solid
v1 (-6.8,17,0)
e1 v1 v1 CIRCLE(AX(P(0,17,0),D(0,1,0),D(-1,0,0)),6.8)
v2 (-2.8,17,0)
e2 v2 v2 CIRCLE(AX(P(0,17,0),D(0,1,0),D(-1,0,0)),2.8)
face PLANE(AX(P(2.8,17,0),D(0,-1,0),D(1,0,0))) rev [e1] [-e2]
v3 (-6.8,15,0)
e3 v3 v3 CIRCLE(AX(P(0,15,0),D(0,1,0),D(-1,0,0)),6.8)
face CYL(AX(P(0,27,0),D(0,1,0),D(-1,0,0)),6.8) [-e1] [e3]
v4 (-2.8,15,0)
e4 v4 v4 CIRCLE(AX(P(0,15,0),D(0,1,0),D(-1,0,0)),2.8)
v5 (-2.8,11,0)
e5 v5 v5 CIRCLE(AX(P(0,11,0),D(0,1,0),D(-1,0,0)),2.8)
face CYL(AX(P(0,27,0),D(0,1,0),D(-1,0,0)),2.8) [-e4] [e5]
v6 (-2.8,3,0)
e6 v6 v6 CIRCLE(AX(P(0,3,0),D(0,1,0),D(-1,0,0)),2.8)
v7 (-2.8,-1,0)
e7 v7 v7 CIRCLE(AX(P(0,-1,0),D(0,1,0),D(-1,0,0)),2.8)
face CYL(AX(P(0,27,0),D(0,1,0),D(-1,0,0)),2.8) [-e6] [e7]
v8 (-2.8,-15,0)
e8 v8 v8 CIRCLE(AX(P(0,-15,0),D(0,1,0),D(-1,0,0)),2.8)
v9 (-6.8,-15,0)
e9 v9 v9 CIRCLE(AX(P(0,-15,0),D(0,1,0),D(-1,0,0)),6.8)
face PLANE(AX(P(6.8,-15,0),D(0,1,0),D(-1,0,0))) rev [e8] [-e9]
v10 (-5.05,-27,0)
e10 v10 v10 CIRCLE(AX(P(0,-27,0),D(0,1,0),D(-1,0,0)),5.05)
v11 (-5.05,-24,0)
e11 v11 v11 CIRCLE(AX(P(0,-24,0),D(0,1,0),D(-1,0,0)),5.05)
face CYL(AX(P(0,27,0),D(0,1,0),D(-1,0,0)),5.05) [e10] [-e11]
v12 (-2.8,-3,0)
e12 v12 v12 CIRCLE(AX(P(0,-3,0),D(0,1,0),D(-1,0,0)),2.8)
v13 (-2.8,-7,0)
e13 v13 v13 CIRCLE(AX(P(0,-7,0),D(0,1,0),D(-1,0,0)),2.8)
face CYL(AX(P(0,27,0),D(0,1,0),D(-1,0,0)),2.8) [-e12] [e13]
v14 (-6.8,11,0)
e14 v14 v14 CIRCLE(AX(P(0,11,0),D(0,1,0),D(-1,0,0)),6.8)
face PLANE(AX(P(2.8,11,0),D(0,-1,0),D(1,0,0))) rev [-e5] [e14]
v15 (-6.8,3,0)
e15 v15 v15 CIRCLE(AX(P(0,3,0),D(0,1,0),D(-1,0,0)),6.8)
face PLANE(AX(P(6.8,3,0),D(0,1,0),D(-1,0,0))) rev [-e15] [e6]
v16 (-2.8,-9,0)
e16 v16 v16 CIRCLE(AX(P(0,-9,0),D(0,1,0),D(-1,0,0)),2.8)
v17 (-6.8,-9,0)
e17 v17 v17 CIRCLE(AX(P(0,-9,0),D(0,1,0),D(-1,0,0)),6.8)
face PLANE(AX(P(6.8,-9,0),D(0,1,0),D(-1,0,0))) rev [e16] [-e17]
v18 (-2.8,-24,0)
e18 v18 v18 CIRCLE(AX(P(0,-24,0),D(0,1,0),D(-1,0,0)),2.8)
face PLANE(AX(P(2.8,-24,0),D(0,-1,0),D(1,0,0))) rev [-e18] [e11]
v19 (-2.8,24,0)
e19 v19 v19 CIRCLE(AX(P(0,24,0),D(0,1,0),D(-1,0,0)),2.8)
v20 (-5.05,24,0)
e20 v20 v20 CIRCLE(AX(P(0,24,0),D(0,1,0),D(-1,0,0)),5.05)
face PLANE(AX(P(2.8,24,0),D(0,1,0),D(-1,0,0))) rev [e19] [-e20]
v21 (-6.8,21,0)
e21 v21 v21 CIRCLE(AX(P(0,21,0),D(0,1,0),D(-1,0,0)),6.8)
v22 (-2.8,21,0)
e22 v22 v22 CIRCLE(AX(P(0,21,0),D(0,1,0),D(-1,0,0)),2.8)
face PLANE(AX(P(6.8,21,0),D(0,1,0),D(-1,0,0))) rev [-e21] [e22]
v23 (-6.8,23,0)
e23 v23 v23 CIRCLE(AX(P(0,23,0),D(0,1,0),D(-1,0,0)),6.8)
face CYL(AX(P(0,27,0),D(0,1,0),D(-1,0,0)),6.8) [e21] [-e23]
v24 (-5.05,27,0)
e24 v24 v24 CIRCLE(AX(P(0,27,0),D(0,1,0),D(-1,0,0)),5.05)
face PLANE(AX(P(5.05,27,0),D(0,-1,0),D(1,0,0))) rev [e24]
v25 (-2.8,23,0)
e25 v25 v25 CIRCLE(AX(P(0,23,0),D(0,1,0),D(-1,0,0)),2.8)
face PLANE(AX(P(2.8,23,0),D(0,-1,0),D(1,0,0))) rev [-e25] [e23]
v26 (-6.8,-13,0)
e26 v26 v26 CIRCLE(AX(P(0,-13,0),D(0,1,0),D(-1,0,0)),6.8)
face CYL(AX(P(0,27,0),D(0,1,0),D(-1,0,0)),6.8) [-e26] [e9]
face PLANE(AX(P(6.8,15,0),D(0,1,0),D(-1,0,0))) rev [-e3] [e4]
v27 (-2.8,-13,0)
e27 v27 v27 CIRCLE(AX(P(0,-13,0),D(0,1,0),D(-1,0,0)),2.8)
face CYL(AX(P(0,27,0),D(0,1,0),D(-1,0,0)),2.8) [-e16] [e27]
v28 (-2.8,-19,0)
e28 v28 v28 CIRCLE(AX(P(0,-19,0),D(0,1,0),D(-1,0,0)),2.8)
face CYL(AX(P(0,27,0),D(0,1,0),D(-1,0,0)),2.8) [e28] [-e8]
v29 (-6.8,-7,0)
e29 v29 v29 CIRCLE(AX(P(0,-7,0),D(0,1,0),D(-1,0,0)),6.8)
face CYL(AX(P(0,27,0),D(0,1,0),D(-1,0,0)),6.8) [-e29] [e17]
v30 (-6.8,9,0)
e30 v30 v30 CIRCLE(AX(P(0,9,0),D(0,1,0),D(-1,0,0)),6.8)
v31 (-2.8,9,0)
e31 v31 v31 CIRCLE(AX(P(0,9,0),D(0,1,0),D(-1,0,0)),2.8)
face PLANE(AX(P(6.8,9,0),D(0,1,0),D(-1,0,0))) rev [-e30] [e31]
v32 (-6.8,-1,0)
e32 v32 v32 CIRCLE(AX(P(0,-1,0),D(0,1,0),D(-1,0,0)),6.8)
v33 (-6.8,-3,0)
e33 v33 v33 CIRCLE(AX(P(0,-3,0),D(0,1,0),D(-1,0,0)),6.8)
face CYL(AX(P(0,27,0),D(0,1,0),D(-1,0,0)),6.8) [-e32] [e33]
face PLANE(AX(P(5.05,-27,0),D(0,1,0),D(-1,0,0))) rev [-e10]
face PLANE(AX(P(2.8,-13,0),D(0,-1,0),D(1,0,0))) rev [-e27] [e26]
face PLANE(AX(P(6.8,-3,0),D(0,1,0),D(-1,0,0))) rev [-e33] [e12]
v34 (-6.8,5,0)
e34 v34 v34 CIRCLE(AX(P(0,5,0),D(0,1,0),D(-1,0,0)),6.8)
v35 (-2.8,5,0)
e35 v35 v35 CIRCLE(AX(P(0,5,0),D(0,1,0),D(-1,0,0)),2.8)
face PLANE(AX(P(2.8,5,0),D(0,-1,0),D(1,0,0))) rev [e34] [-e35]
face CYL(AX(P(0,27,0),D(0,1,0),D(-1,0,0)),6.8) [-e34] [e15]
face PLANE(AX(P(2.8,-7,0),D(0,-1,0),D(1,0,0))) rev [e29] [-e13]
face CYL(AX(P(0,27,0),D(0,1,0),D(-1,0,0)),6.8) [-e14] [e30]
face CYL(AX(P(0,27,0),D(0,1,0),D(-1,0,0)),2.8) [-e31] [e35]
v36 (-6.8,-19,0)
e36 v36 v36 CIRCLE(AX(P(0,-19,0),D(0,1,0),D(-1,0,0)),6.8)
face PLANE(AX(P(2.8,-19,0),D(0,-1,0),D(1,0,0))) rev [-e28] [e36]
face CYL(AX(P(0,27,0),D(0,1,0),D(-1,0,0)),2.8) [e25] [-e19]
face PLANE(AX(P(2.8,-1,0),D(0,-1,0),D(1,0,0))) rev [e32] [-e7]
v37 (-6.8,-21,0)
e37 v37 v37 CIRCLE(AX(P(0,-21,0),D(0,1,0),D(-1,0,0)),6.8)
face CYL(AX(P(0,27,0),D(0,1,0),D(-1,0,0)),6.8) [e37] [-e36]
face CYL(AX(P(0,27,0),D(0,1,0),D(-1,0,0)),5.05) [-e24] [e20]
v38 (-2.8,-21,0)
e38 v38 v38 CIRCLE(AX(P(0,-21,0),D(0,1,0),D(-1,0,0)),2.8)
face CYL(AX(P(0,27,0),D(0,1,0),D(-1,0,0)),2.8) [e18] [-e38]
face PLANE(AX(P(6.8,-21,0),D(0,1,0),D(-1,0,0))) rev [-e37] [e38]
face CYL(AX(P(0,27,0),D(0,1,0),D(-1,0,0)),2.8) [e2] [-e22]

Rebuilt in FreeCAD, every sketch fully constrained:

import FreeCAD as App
import Part
import Sketcher
from FreeCAD import Vector


def add_polygon(sketch, points):
    """Adds a closed chain of lines whose ends are joined by coincident constraints."""
    first, n = sketch.GeometryCount, len(points)
    for a, b in zip(points, points[1:] + points[:1]):
        sketch.addGeometry(Part.LineSegment(App.Vector(*a, 0), App.Vector(*b, 0)), False)
    for i in range(n):
        sketch.addConstraint(Sketcher.Constraint("Coincident", first + i, 2, first + (i + 1) % n, 1))

doc = App.newDocument("Part")
body = doc.addObject("PartDesign::Body", "Body")

# Sketch on XY plane
sketch1 = doc.addObject("Sketcher::SketchObject", "Sketch")
body.addObject(sketch1)
sketch1.AttachmentSupport = (doc.XY_Plane, [""])
sketch1.MapMode = "FlatFace"
add_polygon(sketch1, [(2.8, 23), (2.8, 24), (5.05, 24), (5.05, 27), (0, 27), (0, -27), (5.05, -27), (5.05, -24), (2.8, -24), (2.8, -21), (6.8, -21), (6.8, -19), (2.8, -19), (2.8, -15), (6.8, -15), (6.8, -13), (2.8, -13), (2.8, -9), (6.8, -9), (6.8, -7), (2.8, -7), (2.8, -3), (6.8, -3), (6.8, -1), (2.8, -1), (2.8, 3), (6.8, 3), (6.8, 5), (2.8, 5), (2.8, 9), (6.8, 9), (6.8, 11), (2.8, 11), (2.8, 15), (6.8, 15), (6.8, 17), (2.8, 17), (2.8, 21), (6.8, 21), (6.8, 23)])  # lines 0-39
sketch1.addConstraint(Sketcher.Constraint("Vertical", 0))
sketch1.addConstraint(Sketcher.Constraint("Horizontal", 1))
sketch1.addConstraint(Sketcher.Constraint("Vertical", 2))
sketch1.addConstraint(Sketcher.Constraint("Horizontal", 3))
sketch1.addConstraint(Sketcher.Constraint("Vertical", 4))
sketch1.addConstraint(Sketcher.Constraint("Horizontal", 5))
sketch1.addConstraint(Sketcher.Constraint("Vertical", 6))
sketch1.addConstraint(Sketcher.Constraint("Horizontal", 7))
sketch1.addConstraint(Sketcher.Constraint("Vertical", 8))
sketch1.addConstraint(Sketcher.Constraint("Horizontal", 9))
sketch1.addConstraint(Sketcher.Constraint("Vertical", 10))
sketch1.addConstraint(Sketcher.Constraint("Horizontal", 11))
sketch1.addConstraint(Sketcher.Constraint("Vertical", 12))
sketch1.addConstraint(Sketcher.Constraint("Horizontal", 13))
sketch1.addConstraint(Sketcher.Constraint("Vertical", 14))
sketch1.addConstraint(Sketcher.Constraint("Horizontal", 15))
sketch1.addConstraint(Sketcher.Constraint("Vertical", 16))
sketch1.addConstraint(Sketcher.Constraint("Horizontal", 17))
sketch1.addConstraint(Sketcher.Constraint("Vertical", 18))
sketch1.addConstraint(Sketcher.Constraint("Horizontal", 19))
sketch1.addConstraint(Sketcher.Constraint("Vertical", 20))
sketch1.addConstraint(Sketcher.Constraint("Horizontal", 21))
sketch1.addConstraint(Sketcher.Constraint("Vertical", 22))
sketch1.addConstraint(Sketcher.Constraint("Horizontal", 23))
sketch1.addConstraint(Sketcher.Constraint("Vertical", 24))
sketch1.addConstraint(Sketcher.Constraint("Horizontal", 25))
sketch1.addConstraint(Sketcher.Constraint("Vertical", 26))
sketch1.addConstraint(Sketcher.Constraint("Horizontal", 27))
sketch1.addConstraint(Sketcher.Constraint("Vertical", 28))
sketch1.addConstraint(Sketcher.Constraint("Horizontal", 29))
sketch1.addConstraint(Sketcher.Constraint("Vertical", 30))
sketch1.addConstraint(Sketcher.Constraint("Horizontal", 31))
sketch1.addConstraint(Sketcher.Constraint("Vertical", 32))
sketch1.addConstraint(Sketcher.Constraint("Horizontal", 33))
sketch1.addConstraint(Sketcher.Constraint("Vertical", 34))
sketch1.addConstraint(Sketcher.Constraint("Horizontal", 35))
sketch1.addConstraint(Sketcher.Constraint("Vertical", 36))
sketch1.addConstraint(Sketcher.Constraint("Horizontal", 37))
sketch1.addConstraint(Sketcher.Constraint("Vertical", 38))
sketch1.addConstraint(Sketcher.Constraint("Horizontal", 39))
sketch1.addConstraint(Sketcher.Constraint("Symmetric", 3, 2, 4, 2, -1, 1))
sketch1.addConstraint(Sketcher.Constraint("Symmetric", 1, 2, 6, 2, -1))
sketch1.addConstraint(Sketcher.Constraint("Symmetric", 20, 2, 24, 2, -1))
sketch1.addConstraint(Sketcher.Constraint("Symmetric", 16, 2, 28, 2, -1))
sketch1.addConstraint(Sketcher.Constraint("Symmetric", 12, 2, 32, 2, -1))
sketch1.addConstraint(Sketcher.Constraint("Symmetric", 8, 2, 36, 2, -1))
sketch1.addConstraint(Sketcher.Constraint("Vertical", 0, 2, 7, 2))
sketch1.addConstraint(Sketcher.Constraint("Vertical", 8, 2, 11, 2))
sketch1.addConstraint(Sketcher.Constraint("Vertical", 10, 2, 13, 2))
sketch1.addConstraint(Sketcher.Constraint("Vertical", 12, 2, 15, 2))
sketch1.addConstraint(Sketcher.Constraint("Vertical", 14, 2, 17, 2))
sketch1.addConstraint(Sketcher.Constraint("Vertical", 16, 2, 19, 2))
sketch1.addConstraint(Sketcher.Constraint("Vertical", 18, 2, 21, 2))
sketch1.addConstraint(Sketcher.Constraint("Vertical", 22, 2, 25, 2))
sketch1.addConstraint(Sketcher.Constraint("Vertical", 26, 2, 29, 2))
sketch1.addConstraint(Sketcher.Constraint("Vertical", 30, 2, 33, 2))
sketch1.addConstraint(Sketcher.Constraint("Vertical", 34, 2, 37, 2))
sketch1.addConstraint(Sketcher.Constraint("Equal", 6, 8))
sketch1.addConstraint(Sketcher.Constraint("Equal", 39, 12))
sketch1.addConstraint(Sketcher.Constraint("Equal", 10, 14))
sketch1.addConstraint(Sketcher.Constraint("Equal", 12, 16))
sketch1.addConstraint(Sketcher.Constraint("Equal", 14, 18))
sketch1.addConstraint(Sketcher.Constraint("Equal", 16, 20))
sketch1.addConstraint(Sketcher.Constraint("Equal", 18, 22))
sketch1.addConstraint(Sketcher.Constraint("Equal", 20, 24))
sketch1.addConstraint(Sketcher.Constraint("Equal", 22, 26))
sketch1.addConstraint(Sketcher.Constraint("Equal", 26, 30))
sketch1.addConstraint(Sketcher.Constraint("Equal", 30, 34))
sketch1.addConstraint(Sketcher.Constraint("Equal", 34, 38))
sketch1.addConstraint(Sketcher.Constraint("DistanceX", 9, 1, 9, 2, 4.0))
sketch1.addConstraint(Sketcher.Constraint("DistanceY", 0, 1, 0, 2, 1.0))
sketch1.addConstraint(Sketcher.Constraint("DistanceY", 2, 1, 2, 2, 3.0))
sketch1.addConstraint(Sketcher.Constraint("DistanceX", 1, 1, 1, 2, 2.25))
sketch1.addConstraint(Sketcher.Constraint("DistanceX", 3, 2, 3, 1, 5.05))
revolution = doc.addObject("PartDesign::Revolution", "Revolution")
body.addObject(revolution)
revolution.Profile = sketch1
revolution.ReferenceAxis = (sketch1, ["V_Axis"])
revolution.Angle = 360

doc.recompute()
